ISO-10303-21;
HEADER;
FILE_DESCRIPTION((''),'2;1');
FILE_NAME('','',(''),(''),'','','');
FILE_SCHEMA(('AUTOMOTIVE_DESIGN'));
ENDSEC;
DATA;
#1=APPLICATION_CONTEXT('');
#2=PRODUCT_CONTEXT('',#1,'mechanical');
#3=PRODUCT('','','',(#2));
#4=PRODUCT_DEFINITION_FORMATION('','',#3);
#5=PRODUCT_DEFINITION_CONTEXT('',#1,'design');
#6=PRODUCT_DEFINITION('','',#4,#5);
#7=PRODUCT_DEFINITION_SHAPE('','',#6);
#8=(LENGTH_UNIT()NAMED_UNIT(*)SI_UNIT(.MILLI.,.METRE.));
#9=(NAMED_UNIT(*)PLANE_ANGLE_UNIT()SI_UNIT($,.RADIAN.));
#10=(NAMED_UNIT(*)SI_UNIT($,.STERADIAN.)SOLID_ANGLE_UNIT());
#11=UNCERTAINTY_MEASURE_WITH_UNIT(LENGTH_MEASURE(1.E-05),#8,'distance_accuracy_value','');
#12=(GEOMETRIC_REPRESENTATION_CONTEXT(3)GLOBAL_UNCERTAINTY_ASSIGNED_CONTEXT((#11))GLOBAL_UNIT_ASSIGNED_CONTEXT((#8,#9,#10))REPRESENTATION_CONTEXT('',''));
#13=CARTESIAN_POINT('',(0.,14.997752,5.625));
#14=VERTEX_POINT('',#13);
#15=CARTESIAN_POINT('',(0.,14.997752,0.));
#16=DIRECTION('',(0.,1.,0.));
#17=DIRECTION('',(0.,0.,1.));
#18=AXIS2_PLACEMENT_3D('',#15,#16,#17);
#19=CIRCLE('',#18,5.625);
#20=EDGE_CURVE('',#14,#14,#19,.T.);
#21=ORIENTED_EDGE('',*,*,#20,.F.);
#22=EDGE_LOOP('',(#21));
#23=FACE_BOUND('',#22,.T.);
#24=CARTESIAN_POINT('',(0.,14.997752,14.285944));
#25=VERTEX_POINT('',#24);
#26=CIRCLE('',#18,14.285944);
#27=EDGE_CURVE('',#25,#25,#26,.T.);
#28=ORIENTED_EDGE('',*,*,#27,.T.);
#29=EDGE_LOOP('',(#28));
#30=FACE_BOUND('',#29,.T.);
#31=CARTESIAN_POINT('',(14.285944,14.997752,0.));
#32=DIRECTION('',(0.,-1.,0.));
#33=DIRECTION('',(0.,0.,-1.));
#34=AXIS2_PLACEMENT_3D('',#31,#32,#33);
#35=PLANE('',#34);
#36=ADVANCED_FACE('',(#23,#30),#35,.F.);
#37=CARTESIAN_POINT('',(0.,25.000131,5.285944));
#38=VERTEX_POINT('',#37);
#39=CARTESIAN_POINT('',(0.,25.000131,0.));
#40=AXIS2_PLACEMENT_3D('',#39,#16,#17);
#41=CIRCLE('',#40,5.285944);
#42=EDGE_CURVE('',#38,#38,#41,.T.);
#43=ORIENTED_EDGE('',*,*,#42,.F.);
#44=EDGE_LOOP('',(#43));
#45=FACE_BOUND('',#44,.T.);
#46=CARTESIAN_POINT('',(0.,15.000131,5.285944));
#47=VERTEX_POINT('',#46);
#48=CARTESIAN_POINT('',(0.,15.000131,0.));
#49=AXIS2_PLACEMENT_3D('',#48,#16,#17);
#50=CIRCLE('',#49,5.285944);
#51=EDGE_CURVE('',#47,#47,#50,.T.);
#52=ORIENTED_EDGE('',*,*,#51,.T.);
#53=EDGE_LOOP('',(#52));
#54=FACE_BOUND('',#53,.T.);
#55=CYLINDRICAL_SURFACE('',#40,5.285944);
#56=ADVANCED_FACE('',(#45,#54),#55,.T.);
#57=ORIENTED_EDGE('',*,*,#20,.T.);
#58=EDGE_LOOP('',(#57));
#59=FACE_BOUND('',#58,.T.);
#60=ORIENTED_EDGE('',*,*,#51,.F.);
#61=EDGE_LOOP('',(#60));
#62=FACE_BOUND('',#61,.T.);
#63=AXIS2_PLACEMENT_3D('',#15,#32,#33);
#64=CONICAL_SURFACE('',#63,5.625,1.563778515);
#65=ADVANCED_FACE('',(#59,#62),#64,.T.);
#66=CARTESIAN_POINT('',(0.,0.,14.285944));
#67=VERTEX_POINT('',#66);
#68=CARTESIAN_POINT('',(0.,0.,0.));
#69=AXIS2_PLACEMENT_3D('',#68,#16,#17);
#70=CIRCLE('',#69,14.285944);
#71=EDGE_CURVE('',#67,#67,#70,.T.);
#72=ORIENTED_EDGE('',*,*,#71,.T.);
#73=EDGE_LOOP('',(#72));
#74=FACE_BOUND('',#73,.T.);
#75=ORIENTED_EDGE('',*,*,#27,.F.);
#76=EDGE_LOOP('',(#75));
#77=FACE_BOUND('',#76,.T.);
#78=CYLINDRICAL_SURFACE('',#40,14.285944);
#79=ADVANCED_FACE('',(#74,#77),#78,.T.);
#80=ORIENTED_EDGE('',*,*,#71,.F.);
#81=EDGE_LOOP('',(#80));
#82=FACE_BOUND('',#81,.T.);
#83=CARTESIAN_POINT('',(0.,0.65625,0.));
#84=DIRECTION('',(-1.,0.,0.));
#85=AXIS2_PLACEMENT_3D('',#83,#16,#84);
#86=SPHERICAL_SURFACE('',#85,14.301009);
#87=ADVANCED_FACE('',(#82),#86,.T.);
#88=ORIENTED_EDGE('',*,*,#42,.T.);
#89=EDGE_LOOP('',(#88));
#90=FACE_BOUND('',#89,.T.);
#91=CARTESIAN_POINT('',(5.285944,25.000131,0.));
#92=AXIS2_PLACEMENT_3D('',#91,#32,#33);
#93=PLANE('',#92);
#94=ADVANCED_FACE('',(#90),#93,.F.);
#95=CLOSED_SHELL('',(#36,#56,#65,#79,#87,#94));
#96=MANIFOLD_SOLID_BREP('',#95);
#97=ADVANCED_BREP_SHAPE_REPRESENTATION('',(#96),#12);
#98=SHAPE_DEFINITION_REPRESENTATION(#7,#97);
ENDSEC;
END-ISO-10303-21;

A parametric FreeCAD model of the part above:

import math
import FreeCAD as App
import Part
import Sketcher
Q = App.Units.Quantity

doc = App.newDocument("Part")
body = doc.addObject("PartDesign::Body", "Body")

sketch1 = body.newObject("Sketcher::SketchObject", "Sketch")
sketch1.AttachmentSupport = (doc.getObject("XY_Plane"), [""])
sketch1.MapMode = "FlatFace"
sketch1.addGeometry(Part.LineSegment(App.Vector(0, 25, 0), App.Vector(0, -13.64, 0)), False)
sketch1.addGeometry(Part.ArcOfCircle(Part.Circle(App.Vector(0, 0.66, 0), App.Vector(0, 0, 1), 14.3), math.radians(-90), math.radians(-3)), False)
sketch1.addGeometry(Part.LineSegment(App.Vector(14.29, 0, 0), App.Vector(14.29, 15, 0)), False)
sketch1.addGeometry(Part.LineSegment(App.Vector(14.29, 15, 0), App.Vector(5.62, 15, 0)), False)
sketch1.addGeometry(Part.LineSegment(App.Vector(5.62, 15, 0), App.Vector(5.29, 15, 0)), False)
sketch1.addGeometry(Part.LineSegment(App.Vector(5.29, 15, 0), App.Vector(5.29, 25, 0)), False)
sketch1.addGeometry(Part.LineSegment(App.Vector(5.29, 25, 0), App.Vector(0, 25, 0)), False)
sketch1.addConstraint(Sketcher.Constraint("Coincident", 0, 2, 1, 1))
sketch1.addConstraint(Sketcher.Constraint("Coincident", 1, 2, 2, 1))
sketch1.addConstraint(Sketcher.Constraint("Coincident", 2, 2, 3, 1))
sketch1.addConstraint(Sketcher.Constraint("Coincident", 3, 2, 4, 1))
sketch1.addConstraint(Sketcher.Constraint("Coincident", 4, 2, 5, 1))
sketch1.addConstraint(Sketcher.Constraint("Coincident", 5, 2, 6, 1))
sketch1.addConstraint(Sketcher.Constraint("Coincident", 6, 2, 0, 1))
sketch1.addConstraint(Sketcher.Constraint("Vertical", 0))
sketch1.addConstraint(Sketcher.Constraint("Vertical", 2))
sketch1.addConstraint(Sketcher.Constraint("Horizontal", 3))
sketch1.addConstraint(Sketcher.Constraint("Vertical", 5))
sketch1.addConstraint(Sketcher.Constraint("Horizontal", 6))
sketch1.addConstraint(Sketcher.Constraint("PointOnObject", 1, 3, -2))
sketch1.addConstraint(Sketcher.Constraint("PointOnObject", 0, 2, -2))
sketch1.addConstraint(Sketcher.Constraint("PointOnObject", 1, 2, -1))
sketch1.addConstraint(Sketcher.Constraint("DistanceY", 5, 1, 5, 2, Q("10 mm")))
sketch1.addConstraint(Sketcher.Constraint("DistanceX", 4, 2, 2, 2, Q("9 mm")))
sketch1.addConstraint(Sketcher.Constraint("Radius", 1, Q("14.301009 mm")))
sketch1.addConstraint(Sketcher.Constraint("DistanceX", -1, 1, 3, 2, Q("5.625 mm")))
sketch1.addConstraint(Sketcher.Constraint("DistanceY", 0, 2, 0, 1, Q("38.64489 mm")))
sketch1.addConstraint(Sketcher.Constraint("DistanceY", 2, 1, 2, 2, Q("14.997752 mm")))
sketch1.addConstraint(Sketcher.Constraint("DistanceY", 1, 3, 2, 2, Q("14.341502 mm")))
revolution = body.newObject("PartDesign::Revolution", "Revolution")
revolution.Profile = sketch1
revolution.ReferenceAxis = (sketch1, ["V_Axis"])
revolution.Angle = 360

doc.recompute()
